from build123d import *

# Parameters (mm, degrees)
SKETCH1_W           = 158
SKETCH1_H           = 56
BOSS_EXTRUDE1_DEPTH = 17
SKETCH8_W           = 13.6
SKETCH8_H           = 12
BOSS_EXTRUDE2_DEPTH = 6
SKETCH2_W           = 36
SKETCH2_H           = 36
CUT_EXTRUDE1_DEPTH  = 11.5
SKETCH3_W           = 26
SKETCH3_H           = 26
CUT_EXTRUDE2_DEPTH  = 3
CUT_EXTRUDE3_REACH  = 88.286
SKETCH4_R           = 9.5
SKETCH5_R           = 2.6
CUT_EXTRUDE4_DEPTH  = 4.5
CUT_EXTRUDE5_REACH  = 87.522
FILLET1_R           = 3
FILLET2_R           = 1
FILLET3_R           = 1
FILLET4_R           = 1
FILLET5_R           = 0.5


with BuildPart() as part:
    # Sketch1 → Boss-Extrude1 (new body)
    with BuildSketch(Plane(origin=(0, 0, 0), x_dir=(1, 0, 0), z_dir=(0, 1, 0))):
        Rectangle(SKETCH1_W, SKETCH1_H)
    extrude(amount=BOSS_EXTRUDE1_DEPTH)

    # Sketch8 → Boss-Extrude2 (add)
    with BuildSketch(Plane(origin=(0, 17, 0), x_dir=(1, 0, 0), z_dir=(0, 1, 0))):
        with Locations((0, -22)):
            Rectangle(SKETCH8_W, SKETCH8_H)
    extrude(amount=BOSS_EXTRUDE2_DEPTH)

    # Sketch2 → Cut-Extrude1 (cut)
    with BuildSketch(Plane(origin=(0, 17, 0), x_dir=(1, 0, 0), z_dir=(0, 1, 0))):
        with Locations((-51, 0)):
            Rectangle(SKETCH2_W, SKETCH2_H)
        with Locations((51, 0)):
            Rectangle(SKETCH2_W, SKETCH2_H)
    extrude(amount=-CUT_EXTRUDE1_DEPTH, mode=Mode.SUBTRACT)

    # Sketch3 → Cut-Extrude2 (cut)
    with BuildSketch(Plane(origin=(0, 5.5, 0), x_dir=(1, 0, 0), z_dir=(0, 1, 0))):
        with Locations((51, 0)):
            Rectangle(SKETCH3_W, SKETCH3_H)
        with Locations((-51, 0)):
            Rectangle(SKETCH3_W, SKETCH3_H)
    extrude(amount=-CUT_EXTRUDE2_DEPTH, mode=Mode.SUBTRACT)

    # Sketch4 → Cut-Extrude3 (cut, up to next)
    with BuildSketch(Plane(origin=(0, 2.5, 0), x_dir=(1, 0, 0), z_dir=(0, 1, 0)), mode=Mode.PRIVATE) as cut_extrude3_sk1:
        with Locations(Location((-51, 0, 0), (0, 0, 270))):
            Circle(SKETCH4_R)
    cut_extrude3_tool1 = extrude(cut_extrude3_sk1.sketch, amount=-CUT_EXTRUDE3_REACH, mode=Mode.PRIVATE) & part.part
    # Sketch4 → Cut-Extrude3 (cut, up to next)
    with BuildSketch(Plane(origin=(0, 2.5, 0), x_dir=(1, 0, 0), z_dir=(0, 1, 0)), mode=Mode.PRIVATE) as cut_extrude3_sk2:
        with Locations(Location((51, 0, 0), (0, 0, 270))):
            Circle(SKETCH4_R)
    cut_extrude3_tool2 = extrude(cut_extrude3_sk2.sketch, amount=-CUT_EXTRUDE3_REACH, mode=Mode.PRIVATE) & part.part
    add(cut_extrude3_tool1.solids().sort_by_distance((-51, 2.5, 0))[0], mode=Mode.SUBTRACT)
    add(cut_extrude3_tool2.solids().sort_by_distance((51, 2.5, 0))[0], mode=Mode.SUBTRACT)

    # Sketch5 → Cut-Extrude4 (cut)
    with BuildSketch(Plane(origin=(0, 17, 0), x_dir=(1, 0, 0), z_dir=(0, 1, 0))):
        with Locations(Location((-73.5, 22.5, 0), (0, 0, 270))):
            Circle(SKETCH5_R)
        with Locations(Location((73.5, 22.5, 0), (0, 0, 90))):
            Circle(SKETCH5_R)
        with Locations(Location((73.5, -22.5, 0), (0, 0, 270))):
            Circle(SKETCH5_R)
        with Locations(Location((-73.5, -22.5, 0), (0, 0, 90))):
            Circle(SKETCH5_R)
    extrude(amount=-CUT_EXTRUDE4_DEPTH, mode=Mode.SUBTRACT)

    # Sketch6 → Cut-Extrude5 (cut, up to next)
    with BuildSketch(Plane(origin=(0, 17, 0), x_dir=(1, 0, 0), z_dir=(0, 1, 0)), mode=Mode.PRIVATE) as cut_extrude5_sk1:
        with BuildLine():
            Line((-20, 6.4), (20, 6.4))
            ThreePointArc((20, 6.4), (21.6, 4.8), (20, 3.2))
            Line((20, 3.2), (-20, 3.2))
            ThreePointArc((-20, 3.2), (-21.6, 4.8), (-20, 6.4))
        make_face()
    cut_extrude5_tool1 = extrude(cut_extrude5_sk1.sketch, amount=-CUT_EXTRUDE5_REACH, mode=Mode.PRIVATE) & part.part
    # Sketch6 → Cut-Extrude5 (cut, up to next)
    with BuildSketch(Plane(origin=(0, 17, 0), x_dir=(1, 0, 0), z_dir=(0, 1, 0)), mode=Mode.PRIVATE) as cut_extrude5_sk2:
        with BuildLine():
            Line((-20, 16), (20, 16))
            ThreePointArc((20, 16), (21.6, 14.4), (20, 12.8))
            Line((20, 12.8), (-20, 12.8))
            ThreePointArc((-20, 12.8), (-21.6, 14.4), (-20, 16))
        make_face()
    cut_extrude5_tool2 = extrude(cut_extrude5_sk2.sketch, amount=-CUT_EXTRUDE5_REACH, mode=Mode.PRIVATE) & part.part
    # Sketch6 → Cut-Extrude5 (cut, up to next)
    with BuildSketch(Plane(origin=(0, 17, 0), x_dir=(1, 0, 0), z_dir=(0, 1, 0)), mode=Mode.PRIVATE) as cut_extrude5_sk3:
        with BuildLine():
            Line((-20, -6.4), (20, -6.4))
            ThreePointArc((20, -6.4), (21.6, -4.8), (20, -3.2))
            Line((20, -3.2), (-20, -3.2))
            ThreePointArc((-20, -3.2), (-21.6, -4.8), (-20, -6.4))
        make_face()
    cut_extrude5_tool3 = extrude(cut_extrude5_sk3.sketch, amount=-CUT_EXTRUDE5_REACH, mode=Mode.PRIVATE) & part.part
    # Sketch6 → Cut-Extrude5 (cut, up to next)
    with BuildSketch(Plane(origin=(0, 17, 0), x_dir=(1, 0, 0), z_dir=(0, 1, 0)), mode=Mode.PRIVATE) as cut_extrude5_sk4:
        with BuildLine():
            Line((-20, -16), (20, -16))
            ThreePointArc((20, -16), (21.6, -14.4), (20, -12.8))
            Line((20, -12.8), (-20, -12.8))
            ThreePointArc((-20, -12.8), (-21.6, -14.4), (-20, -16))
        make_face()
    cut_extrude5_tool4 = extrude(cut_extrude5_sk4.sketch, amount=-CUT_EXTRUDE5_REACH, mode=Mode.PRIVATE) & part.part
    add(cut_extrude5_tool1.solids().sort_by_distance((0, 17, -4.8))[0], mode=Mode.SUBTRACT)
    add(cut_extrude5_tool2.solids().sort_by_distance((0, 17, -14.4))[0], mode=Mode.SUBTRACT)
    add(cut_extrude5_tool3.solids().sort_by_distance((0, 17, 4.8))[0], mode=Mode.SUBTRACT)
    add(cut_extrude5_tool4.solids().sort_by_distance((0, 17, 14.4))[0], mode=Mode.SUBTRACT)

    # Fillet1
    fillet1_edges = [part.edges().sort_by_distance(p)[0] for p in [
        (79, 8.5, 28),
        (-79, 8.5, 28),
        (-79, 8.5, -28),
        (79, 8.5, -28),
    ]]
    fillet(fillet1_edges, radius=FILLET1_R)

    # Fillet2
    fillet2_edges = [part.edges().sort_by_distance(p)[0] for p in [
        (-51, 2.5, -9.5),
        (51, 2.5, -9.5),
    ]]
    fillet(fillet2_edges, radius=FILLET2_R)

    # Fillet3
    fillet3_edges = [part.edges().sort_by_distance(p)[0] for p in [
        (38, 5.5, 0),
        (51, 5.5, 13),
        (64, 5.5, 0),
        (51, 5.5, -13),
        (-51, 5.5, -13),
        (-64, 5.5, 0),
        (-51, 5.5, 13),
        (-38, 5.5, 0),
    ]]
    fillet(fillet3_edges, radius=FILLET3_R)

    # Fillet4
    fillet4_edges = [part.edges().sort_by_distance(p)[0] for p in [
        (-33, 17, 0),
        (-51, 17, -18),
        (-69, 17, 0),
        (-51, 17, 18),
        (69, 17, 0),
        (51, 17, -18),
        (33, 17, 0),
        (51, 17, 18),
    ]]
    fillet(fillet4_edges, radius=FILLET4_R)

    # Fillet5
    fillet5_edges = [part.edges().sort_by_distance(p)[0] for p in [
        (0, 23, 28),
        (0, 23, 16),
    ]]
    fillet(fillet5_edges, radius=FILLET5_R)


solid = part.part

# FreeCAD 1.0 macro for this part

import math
import FreeCAD as App
import Part
import Sketcher

V = App.Vector
Q = App.Units.Quantity


def edges_at(feature, points):
    """Names of the edges that pass closest to the given points."""
    edges = feature.Shape.Edges
    near = lambda p: min(range(len(edges)), key=lambda i: edges[i].distToShape(Part.Vertex(*p))[0])
    return sorted({f"Edge{near(p) + 1}" for p in points})

doc = App.newDocument("Part")
body = doc.addObject("PartDesign::Body", "Body")

sketch1 = body.newObject("Sketcher::SketchObject", "Sketch")
sketch1.AttachmentSupport = (doc.getObject("XZ_Plane"), [""])
sketch1.MapMode = "FlatFace"
sketch1.addGeometry([
    Part.LineSegment(V(-79, -28, 0), V(-79, 28, 0)),
    Part.LineSegment(V(-79, 28, 0), V(79, 28, 0)),
    Part.LineSegment(V(79, 28, 0), V(79, -28, 0)),
    Part.LineSegment(V(79, -28, 0), V(-79, -28, 0)),
], False)
sketch1.addConstraint([
    Sketcher.Constraint("Coincident", 0, 2, 1, 1),
    Sketcher.Constraint("Coincident", 1, 2, 2, 1),
    Sketcher.Constraint("Coincident", 2, 2, 3, 1),
    Sketcher.Constraint("Coincident", 3, 2, 0, 1),
    Sketcher.Constraint("Vertical", 0),
    Sketcher.Constraint("Horizontal", 1),
    Sketcher.Constraint("Vertical", 2),
    Sketcher.Constraint("Horizontal", 3),
    Sketcher.Constraint("Symmetric", 0, 2, 2, 2, -1, 1),
    Sketcher.Constraint("DistanceX", 1, 1, 1, 2, Q("158 mm")),
    Sketcher.Constraint("DistanceY", 0, 1, 0, 2, Q("56 mm")),
])
pad1 = body.newObject("PartDesign::Pad", "Pad")
pad1.Profile = sketch1
pad1.Length = 17
pad1.Reversed = True

sketch2 = body.newObject("Sketcher::SketchObject", "Sketch001")
sketch2.AttachmentSupport = (doc.getObject("XZ_Plane"), [""])
sketch2.MapMode = "FlatFace"
sketch2.AttachmentOffset = App.Placement(V(0, 0, -17), App.Rotation())
sketch2.addGeometry([
    Part.LineSegment(V(-6.8, 16, 0), V(-6.8, 28, 0)),
    Part.LineSegment(V(-6.8, 28, 0), V(6.8, 28, 0)),
    Part.LineSegment(V(6.8, 28, 0), V(6.8, 16, 0)),
    Part.LineSegment(V(6.8, 16, 0), V(-6.8, 16, 0)),
], False)
sketch2.addConstraint([
    Sketcher.Constraint("Coincident", 0, 2, 1, 1),
    Sketcher.Constraint("Coincident", 1, 2, 2, 1),
    Sketcher.Constraint("Coincident", 2, 2, 3, 1),
    Sketcher.Constraint("Coincident", 3, 2, 0, 1),
    Sketcher.Constraint("Vertical", 0),
    Sketcher.Constraint("Horizontal", 1),
    Sketcher.Constraint("Vertical", 2),
    Sketcher.Constraint("Horizontal", 3),
    Sketcher.Constraint("DistanceY", 0, 1, 0, 2, Q("12 mm")),
    Sketcher.Constraint("DistanceX", 1, 1, 1, 2, Q("13.6 mm")),
    Sketcher.Constraint("DistanceY", -1, 1, 0, 2, Q("28 mm")),
    Sketcher.Constraint("DistanceX", 0, 2, -1, 1, Q("6.8 mm")),
])
pad2 = body.newObject("PartDesign::Pad", "Pad001")
pad2.Profile = sketch2
pad2.Length = 6
pad2.Reversed = True

sketch3 = body.newObject("Sketcher::SketchObject", "Sketch002")
sketch3.AttachmentSupport = (doc.getObject("XZ_Plane"), [""])
sketch3.MapMode = "FlatFace"
sketch3.AttachmentOffset = App.Placement(V(0, 0, -17), App.Rotation())
sketch3.addGeometry([
    Part.LineSegment(V(-69, -18, 0), V(-69, 18, 0)),
    Part.LineSegment(V(-69, 18, 0), V(-33, 18, 0)),
    Part.LineSegment(V(-33, 18, 0), V(-33, -18, 0)),
    Part.LineSegment(V(-33, -18, 0), V(-69, -18, 0)),
    Part.LineSegment(V(33, -18, 0), V(33, 18, 0)),
    Part.LineSegment(V(33, 18, 0), V(69, 18, 0)),
    Part.LineSegment(V(69, 18, 0), V(69, -18, 0)),
    Part.LineSegment(V(69, -18, 0), V(33, -18, 0)),
], False)
sketch3.addConstraint([
    Sketcher.Constraint("Coincident", 0, 2, 1, 1),
    Sketcher.Constraint("Coincident", 1, 2, 2, 1),
    Sketcher.Constraint("Coincident", 2, 2, 3, 1),
    Sketcher.Constraint("Coincident", 3, 2, 0, 1),
    Sketcher.Constraint("Coincident", 4, 2, 5, 1),
    Sketcher.Constraint("Coincident", 5, 2, 6, 1),
    Sketcher.Constraint("Coincident", 6, 2, 7, 1),
    Sketcher.Constraint("Coincident", 7, 2, 4, 1),
    Sketcher.Constraint("Vertical", 0),
    Sketcher.Constraint("Horizontal", 1),
    Sketcher.Constraint("Vertical", 2),
    Sketcher.Constraint("Horizontal", 3),
    Sketcher.Constraint("Vertical", 4),
    Sketcher.Constraint("Horizontal", 5),
    Sketcher.Constraint("Vertical", 6),
    Sketcher.Constraint("Horizontal", 7),
    Sketcher.Constraint("Symmetric", 2, 2, 4, 2, -1, 1),
    Sketcher.Constraint("Symmetric", 0, 2, 6, 2, -1, 1),
    Sketcher.Constraint("Horizontal", 1, 2, 4, 2),
    Sketcher.Constraint("Equal", 7, 0),
    Sketcher.Constraint("DistanceX", 1, 1, 1, 2, Q("36 mm")),
    Sketcher.Constraint("DistanceX", 0, 2, -1, 1, Q("69 mm")),
])
pocket1 = body.newObject("PartDesign::Pocket", "Pocket")
pocket1.Profile = sketch3
pocket1.Length = 11.5
pocket1.Reversed = True

sketch4 = body.newObject("Sketcher::SketchObject", "Sketch003")
sketch4.AttachmentSupport = (doc.getObject("XZ_Plane"), [""])
sketch4.MapMode = "FlatFace"
sketch4.AttachmentOffset = App.Placement(V(0, 0, -5.5), App.Rotation())
sketch4.addGeometry([
    Part.LineSegment(V(38, -13, 0), V(38, 13, 0)),
    Part.LineSegment(V(38, 13, 0), V(64, 13, 0)),
    Part.LineSegment(V(64, 13, 0), V(64, -13, 0)),
    Part.LineSegment(V(64, -13, 0), V(38, -13, 0)),
    Part.LineSegment(V(-64, -13, 0), V(-64, 13, 0)),
    Part.LineSegment(V(-64, 13, 0), V(-38, 13, 0)),
    Part.LineSegment(V(-38, 13, 0), V(-38, -13, 0)),
    Part.LineSegment(V(-38, -13, 0), V(-64, -13, 0)),
], False)
sketch4.addConstraint([
    Sketcher.Constraint("Coincident", 0, 2, 1, 1),
    Sketcher.Constraint("Coincident", 1, 2, 2, 1),
    Sketcher.Constraint("Coincident", 2, 2, 3, 1),
    Sketcher.Constraint("Coincident", 3, 2, 0, 1),
    Sketcher.Constraint("Coincident", 4, 2, 5, 1),
    Sketcher.Constraint("Coincident", 5, 2, 6, 1),
    Sketcher.Constraint("Coincident", 6, 2, 7, 1),
    Sketcher.Constraint("Coincident", 7, 2, 4, 1),
    Sketcher.Constraint("Vertical", 0),
    Sketcher.Constraint("Horizontal", 1),
    Sketcher.Constraint("Vertical", 2),
    Sketcher.Constraint("Horizontal", 3),
    Sketcher.Constraint("Vertical", 4),
    Sketcher.Constraint("Horizontal", 5),
    Sketcher.Constraint("Vertical", 6),
    Sketcher.Constraint("Horizontal", 7),
    Sketcher.Constraint("Symmetric", 2, 2, 4, 2, -1, 1),
    Sketcher.Constraint("Symmetric", 0, 2, 6, 2, -1, 1),
    Sketcher.Constraint("Horizontal", 1, 2, 4, 2),
    Sketcher.Constraint("Equal", 7, 0),
    Sketcher.Constraint("DistanceX", 1, 1, 1, 2, Q("26 mm")),
    Sketcher.Constraint("DistanceX", -1, 1, 0, 2, Q("38 mm")),
])
pocket2 = body.newObject("PartDesign::Pocket", "Pocket001")
pocket2.Profile = sketch4
pocket2.Length = 3
pocket2.Reversed = True

sketch5 = body.newObject("Sketcher::SketchObject", "Sketch004")
sketch5.AttachmentSupport = (doc.getObject("XZ_Plane"), [""])
sketch5.MapMode = "FlatFace"
sketch5.AttachmentOffset = App.Placement(V(0, 0, -2.5), App.Rotation())
sketch5.addGeometry(Part.Circle(V(-51, 0, 0), V(0, 0, 1), 9.5), False)
sketch5.addConstraint([
    Sketcher.Constraint("PointOnObject", 0, 3, -1),
    Sketcher.Constraint("Diameter", 0, Q("19 mm")),
    Sketcher.Constraint("DistanceX", 0, 3, -1, 1, Q("51 mm")),
])
pocket3 = body.newObject("PartDesign::Pocket", "Pocket002")
pocket3.Profile = sketch5
pocket3.Type = "UpToFirst"
pocket3.Reversed = True

sketch6 = body.newObject("Sketcher::SketchObject", "Sketch005")
sketch6.AttachmentSupport = (doc.getObject("XZ_Plane"), [""])
sketch6.MapMode = "FlatFace"
sketch6.AttachmentOffset = App.Placement(V(0, 0, -2.5), App.Rotation())
sketch6.addGeometry(Part.Circle(V(51, 0, 0), V(0, 0, 1), 9.5), False)
sketch6.addConstraint([
    Sketcher.Constraint("PointOnObject", 0, 3, -1),
    Sketcher.Constraint("Diameter", 0, Q("19 mm")),
    Sketcher.Constraint("DistanceX", -1, 1, 0, 3, Q("51 mm")),
])
pocket4 = body.newObject("PartDesign::Pocket", "Pocket003")
pocket4.Profile = sketch6
pocket4.Type = "UpToFirst"
pocket4.Reversed = True

sketch7 = body.newObject("Sketcher::SketchObject", "Sketch006")
sketch7.AttachmentSupport = (doc.getObject("XZ_Plane"), [""])
sketch7.MapMode = "FlatFace"
sketch7.AttachmentOffset = App.Placement(V(0, 0, -17), App.Rotation())
sketch7.addGeometry([
    Part.Circle(V(-73.5, -22.5, 0), V(0, 0, 1), 2.6),
    Part.Circle(V(73.5, -22.5, 0), V(0, 0, 1), 2.6),
    Part.Circle(V(73.5, 22.5, 0), V(0, 0, 1), 2.6),
    Part.Circle(V(-73.5, 22.5, 0), V(0, 0, 1), 2.6),
], False)
sketch7.addConstraint([
    Sketcher.Constraint("Equal", 0, 1),
    Sketcher.Constraint("Equal", 1, 2),
    Sketcher.Constraint("Equal", 2, 3),
    Sketcher.Constraint("Symmetric", 0, 3, 2, 3, -1, 1),
    Sketcher.Constraint("Symmetric", 1, 3, 3, 3, -1, 1),
    Sketcher.Constraint("Symmetric", 0, 3, 1, 3, -2),
    Sketcher.Constraint("Diameter", 0, Q("5.2 mm")),
    Sketcher.Constraint("DistanceX", 0, 3, 1, 3, Q("147 mm")),
    Sketcher.Constraint("DistanceY", 1, 3, 2, 3, Q("45 mm")),
])
pocket5 = body.newObject("PartDesign::Pocket", "Pocket004")
pocket5.Profile = sketch7
pocket5.Length = 4.5
pocket5.Reversed = True

sketch8 = body.newObject("Sketcher::SketchObject", "Sketch007")
sketch8.AttachmentSupport = (doc.getObject("XZ_Plane"), [""])
sketch8.MapMode = "FlatFace"
sketch8.AttachmentOffset = App.Placement(V(0, 0, -17), App.Rotation())
sketch8.addGeometry([
    Part.LineSegment(V(20, -6.4, 0), V(-20, -6.4, 0)),
    Part.ArcOfCircle(Part.Circle(V(-20, -4.8, 0), V(0, 0, 1), 1.6), math.radians(90), math.radians(270)),
    Part.LineSegment(V(-20, -3.2, 0), V(20, -3.2, 0)),
    Part.ArcOfCircle(Part.Circle(V(20, -4.8, 0), V(0, 0, 1), 1.6), math.radians(-90), math.radians(90)),
], False)
sketch8.addConstraint([
    Sketcher.Constraint("Tangent", 0, 2, 1, 2),
    Sketcher.Constraint("Tangent", 1, 1, 2, 1),
    Sketcher.Constraint("Tangent", 2, 2, 3, 2),
    Sketcher.Constraint("Tangent", 3, 1, 0, 1),
    Sketcher.Constraint("Horizontal", 0),
    Sketcher.Constraint("Horizontal", 2),
    Sketcher.Constraint("Radius", 1, Q("1.6 mm")),
    Sketcher.Constraint("DistanceX", 0, 2, 0, 1, Q("40 mm")),
    Sketcher.Constraint("DistanceX", 1, 3, -1, 1, Q("20 mm")),
    Sketcher.Constraint("DistanceY", 1, 3, -1, 1, Q("4.8 mm")),
])
pocket6 = body.newObject("PartDesign::Pocket", "Pocket005")
pocket6.Profile = sketch8
pocket6.Type = "UpToFirst"
pocket6.Reversed = True

sketch9 = body.newObject("Sketcher::SketchObject", "Sketch008")
sketch9.AttachmentSupport = (doc.getObject("XZ_Plane"), [""])
sketch9.MapMode = "FlatFace"
sketch9.AttachmentOffset = App.Placement(V(0, 0, -17), App.Rotation())
sketch9.addGeometry([
    Part.LineSegment(V(20, -16, 0), V(-20, -16, 0)),
    Part.ArcOfCircle(Part.Circle(V(-20, -14.4, 0), V(0, 0, 1), 1.6), math.radians(90), math.radians(270)),
    Part.LineSegment(V(-20, -12.8, 0), V(20, -12.8, 0)),
    Part.ArcOfCircle(Part.Circle(V(20, -14.4, 0), V(0, 0, 1), 1.6), math.radians(-90), math.radians(90)),
], False)
sketch9.addConstraint([
    Sketcher.Constraint("Tangent", 0, 2, 1, 2),
    Sketcher.Constraint("Tangent", 1, 1, 2, 1),
    Sketcher.Constraint("Tangent", 2, 2, 3, 2),
    Sketcher.Constraint("Tangent", 3, 1, 0, 1),
    Sketcher.Constraint("Horizontal", 0),
    Sketcher.Constraint("Horizontal", 2),
    Sketcher.Constraint("Radius", 1, Q("1.6 mm")),
    Sketcher.Constraint("DistanceX", 0, 2, 0, 1, Q("40 mm")),
    Sketcher.Constraint("DistanceX", 1, 3, -1, 1, Q("20 mm")),
    Sketcher.Constraint("DistanceY", 0, 2, -1, 1, Q("16 mm")),
])
pocket7 = body.newObject("PartDesign::Pocket", "Pocket006")
pocket7.Profile = sketch9
pocket7.Type = "UpToFirst"
pocket7.Reversed = True

sketch10 = body.newObject("Sketcher::SketchObject", "Sketch009")
sketch10.AttachmentSupport = (doc.getObject("XZ_Plane"), [""])
sketch10.MapMode = "FlatFace"
sketch10.AttachmentOffset = App.Placement(V(0, 0, -17), App.Rotation())
sketch10.addGeometry([
    Part.LineSegment(V(-20, 6.4, 0), V(20, 6.4, 0)),
    Part.ArcOfCircle(Part.Circle(V(20, 4.8, 0), V(0, 0, 1), 1.6), math.radians(-90), math.radians(90)),
    Part.LineSegment(V(20, 3.2, 0), V(-20, 3.2, 0)),
    Part.ArcOfCircle(Part.Circle(V(-20, 4.8, 0), V(0, 0, 1), 1.6), math.radians(90), math.radians(270)),
], False)
sketch10.addConstraint([
    Sketcher.Constraint("Tangent", 0, 2, 1, 2),
    Sketcher.Constraint("Tangent", 1, 1, 2, 1),
    Sketcher.Constraint("Tangent", 2, 2, 3, 2),
    Sketcher.Constraint("Tangent", 3, 1, 0, 1),
    Sketcher.Constraint("Horizontal", 0),
    Sketcher.Constraint("Horizontal", 2),
    Sketcher.Constraint("Radius", 1, Q("1.6 mm")),
    Sketcher.Constraint("DistanceX", 0, 1, 0, 2, Q("40 mm")),
    Sketcher.Constraint("DistanceX", -1, 1, 1, 3, Q("20 mm")),
    Sketcher.Constraint("DistanceY", -1, 1, 1, 3, Q("4.8 mm")),
])
pocket8 = body.newObject("PartDesign::Pocket", "Pocket007")
pocket8.Profile = sketch10
pocket8.Type = "UpToFirst"
pocket8.Reversed = True

sketch11 = body.newObject("Sketcher::SketchObject", "Sketch010")
sketch11.AttachmentSupport = (doc.getObject("XZ_Plane"), [""])
sketch11.MapMode = "FlatFace"
sketch11.AttachmentOffset = App.Placement(V(0, 0, -17), App.Rotation())
sketch11.addGeometry([
    Part.LineSegment(V(-20, 16, 0), V(20, 16, 0)),
    Part.ArcOfCircle(Part.Circle(V(20, 14.4, 0), V(0, 0, 1), 1.6), math.radians(-90), math.radians(90)),
    Part.LineSegment(V(20, 12.8, 0), V(-20, 12.8, 0)),
    Part.ArcOfCircle(Part.Circle(V(-20, 14.4, 0), V(0, 0, 1), 1.6), math.radians(90), math.radians(270)),
], False)
sketch11.addConstraint([
    Sketcher.Constraint("Tangent", 0, 2, 1, 2),
    Sketcher.Constraint("Tangent", 1, 1, 2, 1),
    Sketcher.Constraint("Tangent", 2, 2, 3, 2),
    Sketcher.Constraint("Tangent", 3, 1, 0, 1),
    Sketcher.Constraint("Horizontal", 0),
    Sketcher.Constraint("Horizontal", 2),
    Sketcher.Constraint("Radius", 1, Q("1.6 mm")),
    Sketcher.Constraint("DistanceX", 0, 1, 0, 2, Q("40 mm")),
    Sketcher.Constraint("DistanceX", -1, 1, 1, 3, Q("20 mm")),
    Sketcher.Constraint("DistanceY", -1, 1, 0, 2, Q("16 mm")),
])
pocket9 = body.newObject("PartDesign::Pocket", "Pocket008")
pocket9.Profile = sketch11
pocket9.Type = "UpToFirst"
pocket9.Reversed = True
doc.recompute()

fillet = body.newObject("PartDesign::Fillet", "Fillet")
fillet.Base = (pocket9, edges_at(pocket9, [
    (79, 8.5, 28),
    (-79, 8.5, 28),
    (-79, 8.5, -28),
    (79, 8.5, -28),
]))
fillet.Radius = 3
doc.recompute()

fillet2 = body.newObject("PartDesign::Fillet", "Fillet001")
fillet2.Base = (fillet, edges_at(fillet, [(-51, 2.5, -9.5), (51, 2.5, -9.5)]))
fillet2.Radius = 1
doc.recompute()

fillet3 = body.newObject("PartDesign::Fillet", "Fillet002")
fillet3.Base = (fillet2, edges_at(fillet2, [
    (38, 5.5, 0),
    (51, 5.5, 13),
    (64, 5.5, 0),
    (51, 5.5, -13),
    (-51, 5.5, -13),
    (-64, 5.5, 0),
    (-51, 5.5, 13),
    (-38, 5.5, 0),
]))
fillet3.Radius = 1
doc.recompute()

fillet4 = body.newObject("PartDesign::Fillet", "Fillet003")
fillet4.Base = (fillet3, edges_at(fillet3, [
    (-33, 17, 0),
    (-51, 17, -18),
    (-69, 17, 0),
    (-51, 17, 18),
    (69, 17, 0),
    (51, 17, -18),
    (33, 17, 0),
    (51, 17, 18),
]))
fillet4.Radius = 1
doc.recompute()

fillet5 = body.newObject("PartDesign::Fillet", "Fillet004")
fillet5.Base = (fillet4, edges_at(fillet4, [(0, 23, 28), (0, 23, 16)]))
fillet5.Radius = 0.5

doc.recompute()
